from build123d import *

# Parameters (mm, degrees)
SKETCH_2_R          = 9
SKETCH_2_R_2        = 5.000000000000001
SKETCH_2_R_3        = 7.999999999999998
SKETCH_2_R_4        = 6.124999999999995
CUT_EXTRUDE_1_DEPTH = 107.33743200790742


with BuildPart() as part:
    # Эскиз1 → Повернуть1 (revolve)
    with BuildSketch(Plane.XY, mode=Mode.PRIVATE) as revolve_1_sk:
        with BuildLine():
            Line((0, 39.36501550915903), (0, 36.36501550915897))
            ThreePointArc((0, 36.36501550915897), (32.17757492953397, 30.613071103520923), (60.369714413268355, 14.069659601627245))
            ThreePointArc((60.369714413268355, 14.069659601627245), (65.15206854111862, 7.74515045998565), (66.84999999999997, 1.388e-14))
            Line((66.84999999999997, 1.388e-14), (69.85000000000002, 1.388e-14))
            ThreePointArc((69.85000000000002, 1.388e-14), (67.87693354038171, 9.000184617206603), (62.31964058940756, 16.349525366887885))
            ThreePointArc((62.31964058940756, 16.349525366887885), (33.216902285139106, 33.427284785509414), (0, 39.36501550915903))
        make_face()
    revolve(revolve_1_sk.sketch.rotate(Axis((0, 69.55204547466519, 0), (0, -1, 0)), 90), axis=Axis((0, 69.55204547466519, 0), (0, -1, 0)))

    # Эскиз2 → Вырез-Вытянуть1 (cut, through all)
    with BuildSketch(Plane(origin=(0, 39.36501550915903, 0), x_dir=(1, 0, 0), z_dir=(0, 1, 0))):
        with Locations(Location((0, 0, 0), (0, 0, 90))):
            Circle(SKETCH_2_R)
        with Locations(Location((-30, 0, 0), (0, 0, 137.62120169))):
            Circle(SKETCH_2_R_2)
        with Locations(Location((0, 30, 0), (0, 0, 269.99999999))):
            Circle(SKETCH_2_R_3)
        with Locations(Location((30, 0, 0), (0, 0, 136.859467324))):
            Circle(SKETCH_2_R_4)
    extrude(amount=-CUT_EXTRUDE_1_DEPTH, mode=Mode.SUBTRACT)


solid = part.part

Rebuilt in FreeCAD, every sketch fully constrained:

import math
import FreeCAD as App
import Part
import Sketcher

V = App.Vector
Q = App.Units.Quantity

doc = App.newDocument("Part")
body = doc.addObject("PartDesign::Body", "Body")

# Sketch on XY plane
sketch1 = body.newObject("Sketcher::SketchObject", "Sketch")
sketch1.AttachmentSupport = (doc.getObject("XY_Plane"), [""])
sketch1.MapMode = "FlatFace"
sketch1.addGeometry([
    Part.LineSegment(V(0, 39.4, 0), V(0, 36.4, 0)),  # 0
    Part.ArcOfCircle(Part.Circle(V(0, -56.5, 0), V(0, 0, 1), 92.9), math.radians(49), math.radians(90)),  # 1
    Part.ArcOfCircle(Part.Circle(V(48.3, 0, 0), V(0, 0, 1), 18.5), math.radians(0), math.radians(49)),  # 2
    Part.LineSegment(V(66.8, 0, 0), V(69.8, 0, 0)),  # 3
    Part.ArcOfCircle(Part.Circle(V(48.3, 0, 0), V(0, 0, 1), 21.5), math.radians(0), math.radians(49)),  # 4
    Part.ArcOfCircle(Part.Circle(V(0, -56.5, 0), V(0, 0, 1), 95.9), math.radians(49), math.radians(90)),  # 5
], False)
sketch1.addConstraint([
    Sketcher.Constraint("Coincident", 0, 2, 1, 2),
    Sketcher.Constraint("Tangent", 1, 1, 2, 2),
    Sketcher.Constraint("Coincident", 2, 1, 3, 1),
    Sketcher.Constraint("Coincident", 3, 2, 4, 1),
    Sketcher.Constraint("Tangent", 4, 2, 5, 1),
    Sketcher.Constraint("Coincident", 5, 2, 0, 1),
    Sketcher.Constraint("Vertical", 0),
    Sketcher.Constraint("Horizontal", 3),
    Sketcher.Constraint("Coincident", 4, 3, 2, 3),
    Sketcher.Constraint("Coincident", 5, 3, 1, 3),
    Sketcher.Constraint("PointOnObject", 1, 3, -2),
    Sketcher.Constraint("PointOnObject", 2, 3, -1),
    Sketcher.Constraint("PointOnObject", 0, 2, -2),
    Sketcher.Constraint("PointOnObject", 2, 1, -1),
    Sketcher.Constraint("DistanceX", 3, 1, 3, 2, Q("3 mm")),
    Sketcher.Constraint("Radius", 1, Q("92.88 mm")),
    Sketcher.Constraint("Radius", 2, Q("18.5138 mm")),
    Sketcher.Constraint("DistanceX", -1, 1, 2, 1, Q("66.85 mm")),
])
revolution = body.newObject("PartDesign::Revolution", "Revolution")
revolution.Profile = sketch1
revolution.ReferenceAxis = (sketch1, ["V_Axis"])
revolution.Angle = 360

# Sketch on XZ plane
sketch2 = body.newObject("Sketcher::SketchObject", "Sketch001")
sketch2.AttachmentSupport = (doc.getObject("XZ_Plane"), [""])
sketch2.MapMode = "FlatFace"
sketch2.AttachmentOffset = App.Placement(V(0, 0, -39.365016), App.Rotation())
sketch2.addGeometry([
    Part.Circle(V(0, 0, 0), V(0, 0, 1), 9),
    Part.Circle(V(-30, 0, 0), V(0, 0, 1), 5),
    Part.Circle(V(0, -30, 0), V(0, 0, 1), 8),
    Part.Circle(V(30, 0, 0), V(0, 0, 1), 6),
], False)
sketch2.addConstraint([
    Sketcher.Constraint("Coincident", 0, 3, -1, 1),
    Sketcher.Constraint("Symmetric", 1, 3, 3, 3, -1, 1),
    Sketcher.Constraint("PointOnObject", 1, 3, -1),
    Sketcher.Constraint("PointOnObject", 2, 3, -2),
    Sketcher.Constraint("Diameter", 0, Q("18 mm")),
    Sketcher.Constraint("Diameter", 1, Q("10 mm")),
    Sketcher.Constraint("Diameter", 2, Q("16 mm")),
    Sketcher.Constraint("Diameter", 3, Q("12.25 mm")),
    Sketcher.Constraint("DistanceX", 1, 3, -1, 1, Q("30 mm")),
    Sketcher.Constraint("DistanceY", 2, 3, -1, 1, Q("30 mm")),
])
pocket1 = body.newObject("PartDesign::Pocket", "Pocket")
pocket1.Profile = sketch2
pocket1.Type = "ThroughAll"
pocket1.Reversed = True

doc.recompute()
